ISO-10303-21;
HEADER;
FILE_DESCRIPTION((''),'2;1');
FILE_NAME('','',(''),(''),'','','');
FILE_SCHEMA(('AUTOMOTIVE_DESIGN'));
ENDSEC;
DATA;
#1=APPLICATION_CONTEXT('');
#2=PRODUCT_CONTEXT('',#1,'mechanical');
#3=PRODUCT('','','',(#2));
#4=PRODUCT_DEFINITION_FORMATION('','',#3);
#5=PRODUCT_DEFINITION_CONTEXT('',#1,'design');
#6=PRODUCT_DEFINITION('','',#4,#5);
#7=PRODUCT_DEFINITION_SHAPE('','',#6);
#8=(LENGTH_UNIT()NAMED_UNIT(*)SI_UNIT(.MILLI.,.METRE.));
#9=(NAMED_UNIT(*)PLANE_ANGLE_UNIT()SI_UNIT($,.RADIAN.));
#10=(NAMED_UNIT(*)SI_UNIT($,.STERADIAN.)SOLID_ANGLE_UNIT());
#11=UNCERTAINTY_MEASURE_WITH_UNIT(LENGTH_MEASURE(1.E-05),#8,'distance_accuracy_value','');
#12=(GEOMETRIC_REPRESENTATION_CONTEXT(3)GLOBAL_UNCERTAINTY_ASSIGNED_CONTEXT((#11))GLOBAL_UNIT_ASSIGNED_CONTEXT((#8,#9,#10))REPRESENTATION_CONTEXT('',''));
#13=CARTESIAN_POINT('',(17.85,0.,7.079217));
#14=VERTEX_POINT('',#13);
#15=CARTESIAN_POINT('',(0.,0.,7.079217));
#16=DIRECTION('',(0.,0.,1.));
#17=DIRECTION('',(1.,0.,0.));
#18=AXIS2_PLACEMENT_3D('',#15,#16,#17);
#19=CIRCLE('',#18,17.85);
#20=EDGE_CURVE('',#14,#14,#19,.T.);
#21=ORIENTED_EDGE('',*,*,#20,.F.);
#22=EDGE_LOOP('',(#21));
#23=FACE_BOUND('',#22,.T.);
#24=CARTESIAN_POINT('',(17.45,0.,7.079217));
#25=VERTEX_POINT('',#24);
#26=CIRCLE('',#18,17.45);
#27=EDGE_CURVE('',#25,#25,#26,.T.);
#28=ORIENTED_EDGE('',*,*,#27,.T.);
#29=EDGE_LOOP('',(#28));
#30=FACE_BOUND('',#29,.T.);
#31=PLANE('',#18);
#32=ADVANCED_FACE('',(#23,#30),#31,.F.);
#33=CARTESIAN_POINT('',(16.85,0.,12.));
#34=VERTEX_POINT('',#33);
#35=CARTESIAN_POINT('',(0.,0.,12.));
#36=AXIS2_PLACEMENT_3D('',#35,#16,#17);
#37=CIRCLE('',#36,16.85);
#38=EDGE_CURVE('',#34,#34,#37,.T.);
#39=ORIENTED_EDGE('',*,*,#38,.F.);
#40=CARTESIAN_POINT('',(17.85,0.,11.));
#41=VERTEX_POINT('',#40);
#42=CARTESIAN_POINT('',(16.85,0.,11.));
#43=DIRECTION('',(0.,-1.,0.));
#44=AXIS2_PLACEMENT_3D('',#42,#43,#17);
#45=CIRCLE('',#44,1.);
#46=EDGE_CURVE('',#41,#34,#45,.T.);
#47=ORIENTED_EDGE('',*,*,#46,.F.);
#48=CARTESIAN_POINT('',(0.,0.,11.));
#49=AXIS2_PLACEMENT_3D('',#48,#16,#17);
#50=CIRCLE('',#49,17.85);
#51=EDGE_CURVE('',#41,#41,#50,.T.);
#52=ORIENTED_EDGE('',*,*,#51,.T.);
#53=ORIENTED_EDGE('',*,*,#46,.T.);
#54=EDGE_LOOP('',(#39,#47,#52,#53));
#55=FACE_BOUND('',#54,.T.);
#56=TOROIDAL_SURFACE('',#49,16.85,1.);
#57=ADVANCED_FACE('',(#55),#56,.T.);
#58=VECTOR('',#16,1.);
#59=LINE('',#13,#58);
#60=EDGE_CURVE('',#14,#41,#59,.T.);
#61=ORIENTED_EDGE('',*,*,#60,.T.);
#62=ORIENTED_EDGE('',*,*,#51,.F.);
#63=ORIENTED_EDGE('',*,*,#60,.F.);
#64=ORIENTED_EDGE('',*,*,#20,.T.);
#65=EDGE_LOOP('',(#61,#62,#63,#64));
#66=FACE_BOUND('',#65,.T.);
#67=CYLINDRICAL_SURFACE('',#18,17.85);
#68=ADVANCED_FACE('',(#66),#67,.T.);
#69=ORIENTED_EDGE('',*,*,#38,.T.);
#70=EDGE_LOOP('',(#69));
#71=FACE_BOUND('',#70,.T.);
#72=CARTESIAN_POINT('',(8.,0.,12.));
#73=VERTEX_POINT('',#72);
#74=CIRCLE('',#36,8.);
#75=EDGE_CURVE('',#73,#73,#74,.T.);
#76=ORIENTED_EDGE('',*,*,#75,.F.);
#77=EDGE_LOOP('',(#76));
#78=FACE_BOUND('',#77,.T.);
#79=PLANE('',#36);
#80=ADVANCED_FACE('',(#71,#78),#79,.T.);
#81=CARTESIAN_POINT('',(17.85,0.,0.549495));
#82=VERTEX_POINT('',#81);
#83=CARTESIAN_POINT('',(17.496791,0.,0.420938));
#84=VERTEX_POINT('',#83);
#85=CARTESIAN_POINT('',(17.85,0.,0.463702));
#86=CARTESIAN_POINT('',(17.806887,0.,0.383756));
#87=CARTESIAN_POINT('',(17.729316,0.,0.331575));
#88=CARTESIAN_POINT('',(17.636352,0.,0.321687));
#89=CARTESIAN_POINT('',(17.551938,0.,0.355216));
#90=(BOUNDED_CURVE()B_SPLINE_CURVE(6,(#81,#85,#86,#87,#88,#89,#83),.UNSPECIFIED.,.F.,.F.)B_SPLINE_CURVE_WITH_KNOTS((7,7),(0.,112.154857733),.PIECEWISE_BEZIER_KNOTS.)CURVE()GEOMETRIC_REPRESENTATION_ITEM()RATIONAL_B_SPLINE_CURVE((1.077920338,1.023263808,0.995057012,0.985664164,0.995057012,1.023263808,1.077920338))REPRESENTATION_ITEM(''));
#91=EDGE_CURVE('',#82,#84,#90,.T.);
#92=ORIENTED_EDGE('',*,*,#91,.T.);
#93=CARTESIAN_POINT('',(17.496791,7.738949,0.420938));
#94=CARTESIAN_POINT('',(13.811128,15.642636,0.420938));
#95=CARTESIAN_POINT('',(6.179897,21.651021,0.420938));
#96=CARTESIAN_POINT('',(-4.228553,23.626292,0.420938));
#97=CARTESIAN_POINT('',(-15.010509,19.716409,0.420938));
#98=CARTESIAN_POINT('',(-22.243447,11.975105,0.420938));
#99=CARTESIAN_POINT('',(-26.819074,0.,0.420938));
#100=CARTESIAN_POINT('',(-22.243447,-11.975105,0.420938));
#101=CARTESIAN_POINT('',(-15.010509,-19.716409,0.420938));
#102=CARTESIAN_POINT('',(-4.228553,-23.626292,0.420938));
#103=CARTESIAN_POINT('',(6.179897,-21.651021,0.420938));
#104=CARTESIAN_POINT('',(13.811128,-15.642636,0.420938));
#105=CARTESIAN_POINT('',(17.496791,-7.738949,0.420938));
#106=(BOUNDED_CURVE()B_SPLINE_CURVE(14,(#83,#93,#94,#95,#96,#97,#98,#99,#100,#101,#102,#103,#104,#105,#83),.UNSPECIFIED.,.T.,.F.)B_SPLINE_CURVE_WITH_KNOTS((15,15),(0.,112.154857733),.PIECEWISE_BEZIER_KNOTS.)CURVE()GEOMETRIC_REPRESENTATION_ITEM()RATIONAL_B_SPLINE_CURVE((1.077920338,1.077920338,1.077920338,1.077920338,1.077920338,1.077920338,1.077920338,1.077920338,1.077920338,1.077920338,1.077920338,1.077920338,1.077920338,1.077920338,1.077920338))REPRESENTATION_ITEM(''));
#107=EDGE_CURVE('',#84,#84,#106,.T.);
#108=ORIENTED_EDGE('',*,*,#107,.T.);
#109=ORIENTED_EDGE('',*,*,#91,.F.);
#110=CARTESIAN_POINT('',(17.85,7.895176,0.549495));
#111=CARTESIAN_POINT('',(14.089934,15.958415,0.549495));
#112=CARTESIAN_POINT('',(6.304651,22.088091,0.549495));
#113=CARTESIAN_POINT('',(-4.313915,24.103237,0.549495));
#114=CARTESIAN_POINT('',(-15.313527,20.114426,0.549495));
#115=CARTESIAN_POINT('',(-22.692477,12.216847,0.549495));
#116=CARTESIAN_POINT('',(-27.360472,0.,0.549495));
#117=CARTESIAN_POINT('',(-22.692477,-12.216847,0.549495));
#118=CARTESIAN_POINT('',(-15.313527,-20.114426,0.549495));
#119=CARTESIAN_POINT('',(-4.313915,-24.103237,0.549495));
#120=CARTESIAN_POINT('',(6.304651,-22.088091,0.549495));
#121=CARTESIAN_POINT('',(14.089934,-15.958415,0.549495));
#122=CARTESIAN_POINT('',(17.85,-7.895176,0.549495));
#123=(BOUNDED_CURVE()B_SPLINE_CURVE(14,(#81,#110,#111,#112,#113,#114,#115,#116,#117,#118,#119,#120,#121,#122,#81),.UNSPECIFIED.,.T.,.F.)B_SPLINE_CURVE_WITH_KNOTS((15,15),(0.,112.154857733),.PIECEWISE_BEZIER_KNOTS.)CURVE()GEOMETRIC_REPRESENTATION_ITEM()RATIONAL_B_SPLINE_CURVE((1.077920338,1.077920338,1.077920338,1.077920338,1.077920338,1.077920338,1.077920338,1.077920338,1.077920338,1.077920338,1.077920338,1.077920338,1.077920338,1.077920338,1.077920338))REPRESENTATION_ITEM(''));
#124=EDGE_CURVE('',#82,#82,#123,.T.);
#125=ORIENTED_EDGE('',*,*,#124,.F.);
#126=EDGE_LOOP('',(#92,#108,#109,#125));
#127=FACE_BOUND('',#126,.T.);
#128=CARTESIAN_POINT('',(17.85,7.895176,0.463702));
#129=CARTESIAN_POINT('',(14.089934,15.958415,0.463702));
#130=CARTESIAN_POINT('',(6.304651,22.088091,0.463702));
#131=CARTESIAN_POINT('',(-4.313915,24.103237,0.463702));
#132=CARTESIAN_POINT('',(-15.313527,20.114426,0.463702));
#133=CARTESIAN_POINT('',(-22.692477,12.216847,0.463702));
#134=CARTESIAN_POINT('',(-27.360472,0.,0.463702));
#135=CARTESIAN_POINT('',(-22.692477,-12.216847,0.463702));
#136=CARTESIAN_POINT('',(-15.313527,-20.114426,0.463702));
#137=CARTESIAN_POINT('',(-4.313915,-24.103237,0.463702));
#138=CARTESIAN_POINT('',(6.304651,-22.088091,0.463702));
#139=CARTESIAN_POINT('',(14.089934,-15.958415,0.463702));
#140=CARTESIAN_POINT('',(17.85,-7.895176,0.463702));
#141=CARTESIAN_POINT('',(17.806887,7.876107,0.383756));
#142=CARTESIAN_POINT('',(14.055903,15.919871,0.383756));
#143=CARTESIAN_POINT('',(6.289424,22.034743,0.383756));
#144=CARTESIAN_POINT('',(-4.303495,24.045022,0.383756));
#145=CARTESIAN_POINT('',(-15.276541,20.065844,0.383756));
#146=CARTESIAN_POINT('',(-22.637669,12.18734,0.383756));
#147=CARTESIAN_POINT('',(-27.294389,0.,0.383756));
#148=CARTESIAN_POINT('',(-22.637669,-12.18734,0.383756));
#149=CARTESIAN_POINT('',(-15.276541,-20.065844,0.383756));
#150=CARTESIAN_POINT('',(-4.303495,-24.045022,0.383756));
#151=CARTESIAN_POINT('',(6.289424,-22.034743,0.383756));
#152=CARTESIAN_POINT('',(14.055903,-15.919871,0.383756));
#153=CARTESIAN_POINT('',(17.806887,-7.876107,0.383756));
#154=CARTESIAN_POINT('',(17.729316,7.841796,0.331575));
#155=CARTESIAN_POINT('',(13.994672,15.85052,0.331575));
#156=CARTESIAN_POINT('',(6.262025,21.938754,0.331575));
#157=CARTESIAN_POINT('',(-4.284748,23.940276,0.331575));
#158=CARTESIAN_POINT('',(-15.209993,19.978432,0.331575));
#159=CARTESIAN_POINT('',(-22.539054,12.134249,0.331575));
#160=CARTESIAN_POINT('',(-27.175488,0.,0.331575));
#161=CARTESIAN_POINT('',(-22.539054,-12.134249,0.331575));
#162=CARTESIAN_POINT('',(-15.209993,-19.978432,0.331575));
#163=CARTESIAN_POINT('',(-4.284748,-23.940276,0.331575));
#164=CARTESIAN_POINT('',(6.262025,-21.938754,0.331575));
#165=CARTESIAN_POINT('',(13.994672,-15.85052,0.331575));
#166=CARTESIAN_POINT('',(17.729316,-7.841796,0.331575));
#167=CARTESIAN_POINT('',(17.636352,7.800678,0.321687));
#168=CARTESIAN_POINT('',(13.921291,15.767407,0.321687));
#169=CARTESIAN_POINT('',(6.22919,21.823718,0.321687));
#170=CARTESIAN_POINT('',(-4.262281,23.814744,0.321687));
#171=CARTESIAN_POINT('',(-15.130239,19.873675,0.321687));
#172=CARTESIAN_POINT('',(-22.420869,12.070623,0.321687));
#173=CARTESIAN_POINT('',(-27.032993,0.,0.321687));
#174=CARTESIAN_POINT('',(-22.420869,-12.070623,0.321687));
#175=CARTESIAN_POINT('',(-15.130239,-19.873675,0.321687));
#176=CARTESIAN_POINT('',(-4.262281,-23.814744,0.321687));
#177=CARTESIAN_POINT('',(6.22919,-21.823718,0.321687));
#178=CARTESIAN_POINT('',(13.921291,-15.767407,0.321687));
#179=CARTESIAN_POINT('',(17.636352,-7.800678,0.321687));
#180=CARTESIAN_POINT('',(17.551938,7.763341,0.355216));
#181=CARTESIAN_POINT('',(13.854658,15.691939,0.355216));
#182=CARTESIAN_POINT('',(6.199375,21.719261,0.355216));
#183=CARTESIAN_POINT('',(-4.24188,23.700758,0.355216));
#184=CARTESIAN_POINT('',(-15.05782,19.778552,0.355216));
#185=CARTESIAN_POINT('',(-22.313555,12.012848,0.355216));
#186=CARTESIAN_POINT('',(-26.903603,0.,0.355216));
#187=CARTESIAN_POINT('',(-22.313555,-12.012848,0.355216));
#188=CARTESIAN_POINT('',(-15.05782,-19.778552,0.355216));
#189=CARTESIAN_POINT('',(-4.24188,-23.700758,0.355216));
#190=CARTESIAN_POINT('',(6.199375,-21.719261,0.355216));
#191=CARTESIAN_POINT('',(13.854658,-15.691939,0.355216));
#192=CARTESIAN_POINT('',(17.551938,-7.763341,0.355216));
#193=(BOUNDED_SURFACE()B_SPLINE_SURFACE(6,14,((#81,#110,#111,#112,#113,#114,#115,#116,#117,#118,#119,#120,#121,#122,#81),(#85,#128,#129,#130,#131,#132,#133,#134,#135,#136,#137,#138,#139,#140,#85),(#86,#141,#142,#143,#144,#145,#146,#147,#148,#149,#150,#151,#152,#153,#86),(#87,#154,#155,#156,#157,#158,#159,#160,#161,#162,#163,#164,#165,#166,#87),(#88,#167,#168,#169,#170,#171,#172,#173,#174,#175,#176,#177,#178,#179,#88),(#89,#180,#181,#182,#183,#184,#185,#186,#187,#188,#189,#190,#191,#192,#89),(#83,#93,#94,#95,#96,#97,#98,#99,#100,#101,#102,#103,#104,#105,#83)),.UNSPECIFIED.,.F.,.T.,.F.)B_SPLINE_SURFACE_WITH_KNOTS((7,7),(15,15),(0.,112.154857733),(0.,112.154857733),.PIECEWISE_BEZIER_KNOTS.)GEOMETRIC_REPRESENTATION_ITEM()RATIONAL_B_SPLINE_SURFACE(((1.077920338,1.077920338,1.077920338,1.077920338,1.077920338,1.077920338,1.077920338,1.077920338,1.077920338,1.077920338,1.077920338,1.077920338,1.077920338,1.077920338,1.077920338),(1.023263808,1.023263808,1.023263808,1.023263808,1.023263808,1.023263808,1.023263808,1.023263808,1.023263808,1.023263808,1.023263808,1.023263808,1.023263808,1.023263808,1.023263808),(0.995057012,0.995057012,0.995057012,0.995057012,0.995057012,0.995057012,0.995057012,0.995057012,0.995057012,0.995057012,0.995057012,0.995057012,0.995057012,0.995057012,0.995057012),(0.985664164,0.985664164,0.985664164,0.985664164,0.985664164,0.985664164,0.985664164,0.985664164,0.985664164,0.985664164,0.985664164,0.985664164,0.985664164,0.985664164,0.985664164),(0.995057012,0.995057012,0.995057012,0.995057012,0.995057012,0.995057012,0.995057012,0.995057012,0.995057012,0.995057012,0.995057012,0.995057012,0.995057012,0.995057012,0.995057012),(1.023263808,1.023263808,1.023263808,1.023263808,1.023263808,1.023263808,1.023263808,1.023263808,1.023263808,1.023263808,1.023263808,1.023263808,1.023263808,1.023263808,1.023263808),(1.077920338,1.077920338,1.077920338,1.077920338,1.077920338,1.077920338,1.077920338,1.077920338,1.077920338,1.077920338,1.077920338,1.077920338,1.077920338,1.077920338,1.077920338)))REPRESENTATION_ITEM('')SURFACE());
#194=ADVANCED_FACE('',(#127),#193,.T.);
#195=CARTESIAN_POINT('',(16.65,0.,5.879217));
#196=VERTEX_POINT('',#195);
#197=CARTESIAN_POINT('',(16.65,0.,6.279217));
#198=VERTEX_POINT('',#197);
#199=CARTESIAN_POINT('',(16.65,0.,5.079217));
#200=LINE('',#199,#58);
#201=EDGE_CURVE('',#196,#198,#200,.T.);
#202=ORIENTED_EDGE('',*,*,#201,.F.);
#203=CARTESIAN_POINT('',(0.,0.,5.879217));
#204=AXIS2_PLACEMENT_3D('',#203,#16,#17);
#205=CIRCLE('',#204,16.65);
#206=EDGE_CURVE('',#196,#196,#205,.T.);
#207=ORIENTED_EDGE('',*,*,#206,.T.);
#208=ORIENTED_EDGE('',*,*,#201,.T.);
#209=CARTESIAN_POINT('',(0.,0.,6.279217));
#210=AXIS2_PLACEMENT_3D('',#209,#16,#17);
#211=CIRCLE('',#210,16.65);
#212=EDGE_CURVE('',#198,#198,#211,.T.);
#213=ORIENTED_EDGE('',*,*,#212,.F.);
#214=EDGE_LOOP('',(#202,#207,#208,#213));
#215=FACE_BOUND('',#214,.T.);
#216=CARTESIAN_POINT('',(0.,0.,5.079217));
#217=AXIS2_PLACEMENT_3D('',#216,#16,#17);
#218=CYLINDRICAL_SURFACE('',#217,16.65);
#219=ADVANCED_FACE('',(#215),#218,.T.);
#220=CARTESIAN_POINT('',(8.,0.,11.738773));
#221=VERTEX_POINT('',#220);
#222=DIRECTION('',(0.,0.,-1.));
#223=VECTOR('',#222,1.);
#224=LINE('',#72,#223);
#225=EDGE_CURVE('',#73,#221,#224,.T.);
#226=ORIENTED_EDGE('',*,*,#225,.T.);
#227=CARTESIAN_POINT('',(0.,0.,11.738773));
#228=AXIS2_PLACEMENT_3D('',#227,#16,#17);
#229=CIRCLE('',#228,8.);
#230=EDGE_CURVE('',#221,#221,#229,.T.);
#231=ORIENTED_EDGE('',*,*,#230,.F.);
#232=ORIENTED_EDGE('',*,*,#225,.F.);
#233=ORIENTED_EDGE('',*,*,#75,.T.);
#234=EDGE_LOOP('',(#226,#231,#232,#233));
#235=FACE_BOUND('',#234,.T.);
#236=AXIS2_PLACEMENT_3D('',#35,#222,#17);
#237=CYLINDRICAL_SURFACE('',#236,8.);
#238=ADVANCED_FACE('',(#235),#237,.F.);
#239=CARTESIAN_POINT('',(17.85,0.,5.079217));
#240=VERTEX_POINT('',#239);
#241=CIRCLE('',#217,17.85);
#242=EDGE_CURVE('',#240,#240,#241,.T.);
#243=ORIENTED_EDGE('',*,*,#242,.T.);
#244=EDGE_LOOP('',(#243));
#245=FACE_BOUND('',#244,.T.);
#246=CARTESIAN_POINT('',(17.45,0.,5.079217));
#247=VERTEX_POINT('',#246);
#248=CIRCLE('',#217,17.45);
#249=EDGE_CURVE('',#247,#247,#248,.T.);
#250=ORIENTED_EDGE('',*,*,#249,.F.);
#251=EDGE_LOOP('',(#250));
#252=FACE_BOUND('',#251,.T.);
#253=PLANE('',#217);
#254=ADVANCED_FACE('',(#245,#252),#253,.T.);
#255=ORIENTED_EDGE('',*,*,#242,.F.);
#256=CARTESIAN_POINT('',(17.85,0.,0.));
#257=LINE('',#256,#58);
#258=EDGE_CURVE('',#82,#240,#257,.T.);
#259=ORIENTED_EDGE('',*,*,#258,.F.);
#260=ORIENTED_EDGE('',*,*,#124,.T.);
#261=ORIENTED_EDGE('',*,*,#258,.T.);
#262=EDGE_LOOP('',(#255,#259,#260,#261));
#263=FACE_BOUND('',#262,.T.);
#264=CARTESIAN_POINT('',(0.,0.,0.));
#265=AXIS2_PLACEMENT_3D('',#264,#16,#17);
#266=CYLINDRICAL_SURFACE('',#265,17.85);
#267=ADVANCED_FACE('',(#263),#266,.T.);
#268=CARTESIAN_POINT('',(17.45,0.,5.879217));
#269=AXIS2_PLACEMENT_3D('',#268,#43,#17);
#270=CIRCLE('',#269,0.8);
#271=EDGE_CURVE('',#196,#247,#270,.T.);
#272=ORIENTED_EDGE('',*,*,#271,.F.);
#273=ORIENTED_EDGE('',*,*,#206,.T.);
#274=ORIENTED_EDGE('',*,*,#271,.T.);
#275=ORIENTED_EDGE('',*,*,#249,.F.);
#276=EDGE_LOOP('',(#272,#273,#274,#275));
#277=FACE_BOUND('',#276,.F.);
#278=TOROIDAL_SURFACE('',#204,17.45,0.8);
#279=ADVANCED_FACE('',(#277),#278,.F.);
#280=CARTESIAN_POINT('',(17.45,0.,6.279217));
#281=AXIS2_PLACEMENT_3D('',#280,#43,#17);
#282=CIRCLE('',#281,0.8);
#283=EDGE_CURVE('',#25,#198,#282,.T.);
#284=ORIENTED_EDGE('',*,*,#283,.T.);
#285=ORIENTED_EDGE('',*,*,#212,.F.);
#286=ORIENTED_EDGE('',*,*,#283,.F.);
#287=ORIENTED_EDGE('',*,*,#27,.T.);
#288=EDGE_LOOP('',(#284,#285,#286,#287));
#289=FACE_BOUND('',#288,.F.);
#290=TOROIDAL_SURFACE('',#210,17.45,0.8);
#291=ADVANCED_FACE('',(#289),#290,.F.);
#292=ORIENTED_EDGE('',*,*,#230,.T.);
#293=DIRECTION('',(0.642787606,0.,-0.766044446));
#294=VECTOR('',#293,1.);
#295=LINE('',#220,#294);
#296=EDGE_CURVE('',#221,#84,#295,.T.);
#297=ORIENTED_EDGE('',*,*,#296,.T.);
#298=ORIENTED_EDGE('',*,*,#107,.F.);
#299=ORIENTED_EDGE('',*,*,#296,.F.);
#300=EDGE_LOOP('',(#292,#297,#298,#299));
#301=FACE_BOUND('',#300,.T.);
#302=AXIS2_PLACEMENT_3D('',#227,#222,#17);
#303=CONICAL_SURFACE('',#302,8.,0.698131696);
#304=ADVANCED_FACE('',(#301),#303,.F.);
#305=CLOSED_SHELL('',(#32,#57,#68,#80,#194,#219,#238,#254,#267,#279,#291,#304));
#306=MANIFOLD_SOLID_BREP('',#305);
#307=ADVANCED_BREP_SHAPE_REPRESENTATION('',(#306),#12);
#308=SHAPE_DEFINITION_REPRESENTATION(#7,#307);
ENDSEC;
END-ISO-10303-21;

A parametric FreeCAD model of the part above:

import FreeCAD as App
import Part
import Sketcher
Q = App.Units.Quantity


def edges_at(feature, points):
    """Names of the edges that pass closest to the given points."""
    edges = feature.Shape.Edges
    near = lambda p: min(range(len(edges)), key=lambda i: edges[i].distToShape(Part.Vertex(*p))[0])
    return sorted({f"Edge{near(p) + 1}" for p in points})

doc = App.newDocument("Part")
body = doc.addObject("PartDesign::Body", "Body")

# Sketch on XZ plane
sketch1 = body.newObject("Sketcher::SketchObject", "Sketch")
sketch1.AttachmentSupport = (doc.getObject("XZ_Plane"), [""])
sketch1.MapMode = "FlatFace"
sketch1.addGeometry([
    Part.LineSegment(App.Vector(8, 11.74, 0), App.Vector(17.85, 0, 0)),  # 0
    Part.LineSegment(App.Vector(17.85, 0, 0), App.Vector(17.85, 5.08, 0)),  # 1
    Part.LineSegment(App.Vector(17.85, 5.08, 0), App.Vector(16.65, 5.08, 0)),  # 2
    Part.LineSegment(App.Vector(16.65, 5.08, 0), App.Vector(16.65, 7.08, 0)),  # 3
    Part.LineSegment(App.Vector(16.65, 7.08, 0), App.Vector(17.85, 7.08, 0)),  # 4
    Part.LineSegment(App.Vector(17.85, 7.08, 0), App.Vector(17.85, 12, 0)),  # 5
    Part.LineSegment(App.Vector(17.85, 12, 0), App.Vector(8, 12, 0)),  # 6
    Part.LineSegment(App.Vector(8, 12, 0), App.Vector(8, 11.74, 0)),  # 7
], False)
sketch1.addConstraint([
    Sketcher.Constraint("Coincident", 0, 2, 1, 1),
    Sketcher.Constraint("Coincident", 1, 2, 2, 1),
    Sketcher.Constraint("Coincident", 2, 2, 3, 1),
    Sketcher.Constraint("Coincident", 3, 2, 4, 1),
    Sketcher.Constraint("Coincident", 4, 2, 5, 1),
    Sketcher.Constraint("Coincident", 5, 2, 6, 1),
    Sketcher.Constraint("Coincident", 6, 2, 7, 1),
    Sketcher.Constraint("Coincident", 7, 2, 0, 1),
    Sketcher.Constraint("Vertical", 1),
    Sketcher.Constraint("Horizontal", 2),
    Sketcher.Constraint("Vertical", 3),
    Sketcher.Constraint("Horizontal", 4),
    Sketcher.Constraint("Vertical", 5),
    Sketcher.Constraint("Horizontal", 6),
    Sketcher.Constraint("Vertical", 7),
    Sketcher.Constraint("PointOnObject", 0, 2, -1),
    Sketcher.Constraint("Vertical", 1, 2, 4, 2),
    Sketcher.Constraint("DistanceY", 3, 1, 3, 2, 2.0),
    Sketcher.Constraint("Angle", 0, Q("-50 deg")),
    Sketcher.Constraint("DistanceX", 2, 2, 2, 1, 1.2),
    Sketcher.Constraint("DistanceY", -1, 1, 5, 2, 12.0),
    Sketcher.Constraint("DistanceX", -1, 1, 6, 2, 8.0),
    Sketcher.Constraint("DistanceX", 6, 2, 6, 1, 9.85),
    Sketcher.Constraint("DistanceY", 1, 1, 1, 2, 5.079217),
])
revolution = body.newObject("PartDesign::Revolution", "Revolution")
revolution.Profile = sketch1
revolution.ReferenceAxis = (sketch1, ["V_Axis"])
revolution.Angle = 360
doc.recompute()

fillet = body.newObject("PartDesign::Fillet", "Fillet")
fillet.Base = (revolution, edges_at(revolution, [(-17.85, 0, 12)]))
fillet.Radius = 1
doc.recompute()

fillet2 = body.newObject("PartDesign::Fillet", "Fillet001")
fillet2.Base = (fillet, edges_at(fillet, [(-16.65, 0, 7.079), (-16.65, 0, 5.079)]))
fillet2.Radius = 0.8
doc.recompute()

fillet3 = body.newObject("PartDesign::Fillet", "Fillet002")
fillet3.Base = (fillet2, edges_at(fillet2, [(-17.85, 0, 0)]))
fillet3.Radius = 0.2

doc.recompute()
